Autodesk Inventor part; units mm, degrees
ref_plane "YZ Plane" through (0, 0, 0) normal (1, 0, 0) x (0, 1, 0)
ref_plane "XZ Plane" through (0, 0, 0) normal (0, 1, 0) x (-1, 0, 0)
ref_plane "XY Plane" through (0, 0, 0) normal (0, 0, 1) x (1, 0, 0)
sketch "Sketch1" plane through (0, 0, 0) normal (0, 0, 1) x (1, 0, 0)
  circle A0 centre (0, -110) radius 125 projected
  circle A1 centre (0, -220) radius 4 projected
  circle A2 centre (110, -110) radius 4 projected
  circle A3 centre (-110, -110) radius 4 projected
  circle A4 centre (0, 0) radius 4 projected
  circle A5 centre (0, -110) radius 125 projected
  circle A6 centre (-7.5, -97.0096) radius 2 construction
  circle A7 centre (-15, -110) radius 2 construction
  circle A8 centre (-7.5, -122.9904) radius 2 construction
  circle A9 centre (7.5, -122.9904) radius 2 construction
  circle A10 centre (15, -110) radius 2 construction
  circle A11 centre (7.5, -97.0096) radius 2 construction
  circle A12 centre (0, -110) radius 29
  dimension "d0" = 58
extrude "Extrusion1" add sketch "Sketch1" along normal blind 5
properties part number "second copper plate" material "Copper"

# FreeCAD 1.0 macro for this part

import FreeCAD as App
import Part
import Sketcher
Q = App.Units.Quantity

doc = App.newDocument("Part")
body = doc.addObject("PartDesign::Body", "Body")

# Sketch on XY plane
sketch1 = body.newObject("Sketcher::SketchObject", "Sketch")
sketch1.AttachmentSupport = (doc.getObject("XY_Plane"), [""])
sketch1.MapMode = "FlatFace"
sketch1.addGeometry(Part.Circle(App.Vector(0, -110, 0), App.Vector(0, 0, 1), 125), False)
sketch1.addGeometry(Part.Circle(App.Vector(0, -220, 0), App.Vector(0, 0, 1), 4), False)
sketch1.addGeometry(Part.Circle(App.Vector(-110, -110, 0), App.Vector(0, 0, 1), 4), False)
sketch1.addGeometry(Part.Circle(App.Vector(0, -110, 0), App.Vector(0, 0, 1), 29), False)
sketch1.addGeometry(Part.Circle(App.Vector(110, -110, 0), App.Vector(0, 0, 1), 4), False)
sketch1.addGeometry(Part.Circle(App.Vector(0, 0, 0), App.Vector(0, 0, 1), 4), False)
sketch1.addConstraint(Sketcher.Constraint("Coincident", 5, 3, -1, 1))
sketch1.addConstraint(Sketcher.Constraint("Coincident", 3, 3, 0, 3))
sketch1.addConstraint(Sketcher.Constraint("Equal", 1, 2))
sketch1.addConstraint(Sketcher.Constraint("Equal", 2, 4))
sketch1.addConstraint(Sketcher.Constraint("Equal", 4, 5))
sketch1.addConstraint(Sketcher.Constraint("Symmetric", 2, 3, 4, 3, -2))
sketch1.addConstraint(Sketcher.Constraint("PointOnObject", 0, 3, -2))
sketch1.addConstraint(Sketcher.Constraint("PointOnObject", 1, 3, -2))
sketch1.addConstraint(Sketcher.Constraint("Horizontal", 0, 3, 2, 3))
sketch1.addConstraint(Sketcher.Constraint("Diameter", 3, Q("58 mm")))
sketch1.addConstraint(Sketcher.Constraint("Diameter", 0, Q("250 mm")))
sketch1.addConstraint(Sketcher.Constraint("Diameter", 1, Q("8 mm")))
sketch1.addConstraint(Sketcher.Constraint("DistanceY", 0, 3, -1, 1, Q("110 mm")))
sketch1.addConstraint(Sketcher.Constraint("DistanceY", 1, 3, -1, 1, Q("220 mm")))
sketch1.addConstraint(Sketcher.Constraint("DistanceX", 2, 3, -1, 1, Q("110 mm")))
pad1 = body.newObject("PartDesign::Pad", "Pad")
pad1.Profile = sketch1
pad1.Length = 5

doc.recompute()
